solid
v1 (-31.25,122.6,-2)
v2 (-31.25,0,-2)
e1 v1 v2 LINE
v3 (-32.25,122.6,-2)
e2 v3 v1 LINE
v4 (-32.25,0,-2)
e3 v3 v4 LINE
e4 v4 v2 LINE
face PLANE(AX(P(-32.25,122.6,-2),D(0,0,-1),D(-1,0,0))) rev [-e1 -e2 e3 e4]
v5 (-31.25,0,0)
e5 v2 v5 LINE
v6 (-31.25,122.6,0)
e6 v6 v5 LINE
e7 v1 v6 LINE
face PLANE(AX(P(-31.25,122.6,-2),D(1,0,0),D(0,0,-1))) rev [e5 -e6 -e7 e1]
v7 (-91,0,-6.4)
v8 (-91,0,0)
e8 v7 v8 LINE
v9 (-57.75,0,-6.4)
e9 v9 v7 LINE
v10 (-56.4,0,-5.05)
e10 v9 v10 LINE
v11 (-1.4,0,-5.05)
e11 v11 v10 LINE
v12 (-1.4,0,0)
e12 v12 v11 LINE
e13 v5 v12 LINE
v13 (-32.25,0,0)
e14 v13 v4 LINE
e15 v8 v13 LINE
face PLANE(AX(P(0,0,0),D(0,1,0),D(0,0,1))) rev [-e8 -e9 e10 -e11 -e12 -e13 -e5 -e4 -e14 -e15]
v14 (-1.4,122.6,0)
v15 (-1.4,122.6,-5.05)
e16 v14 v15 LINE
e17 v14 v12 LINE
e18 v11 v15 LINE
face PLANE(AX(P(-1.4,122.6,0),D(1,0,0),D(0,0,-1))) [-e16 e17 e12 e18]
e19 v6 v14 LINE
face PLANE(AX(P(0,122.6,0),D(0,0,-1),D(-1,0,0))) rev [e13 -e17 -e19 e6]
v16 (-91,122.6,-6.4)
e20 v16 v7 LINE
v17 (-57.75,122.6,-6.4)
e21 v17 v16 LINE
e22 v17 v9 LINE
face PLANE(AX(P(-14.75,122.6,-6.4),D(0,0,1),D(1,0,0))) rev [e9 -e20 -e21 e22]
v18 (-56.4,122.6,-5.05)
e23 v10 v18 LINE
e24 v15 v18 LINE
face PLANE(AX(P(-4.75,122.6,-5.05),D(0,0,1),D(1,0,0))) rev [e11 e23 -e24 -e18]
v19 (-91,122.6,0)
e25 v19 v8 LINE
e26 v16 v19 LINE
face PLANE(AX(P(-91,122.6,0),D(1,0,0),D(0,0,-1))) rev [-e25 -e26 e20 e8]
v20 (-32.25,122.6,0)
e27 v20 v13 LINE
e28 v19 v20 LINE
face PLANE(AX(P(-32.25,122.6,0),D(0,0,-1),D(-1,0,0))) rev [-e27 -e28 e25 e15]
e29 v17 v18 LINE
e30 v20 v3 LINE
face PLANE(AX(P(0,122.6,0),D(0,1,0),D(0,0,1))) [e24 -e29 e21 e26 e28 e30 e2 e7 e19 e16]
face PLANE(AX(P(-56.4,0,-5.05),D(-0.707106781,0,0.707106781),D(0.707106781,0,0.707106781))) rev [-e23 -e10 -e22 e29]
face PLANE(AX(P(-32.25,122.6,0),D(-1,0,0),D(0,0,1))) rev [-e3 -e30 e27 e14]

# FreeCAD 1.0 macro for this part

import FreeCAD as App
import Part
import Sketcher
from FreeCAD import Vector
Q = App.Units.Quantity


def add_polygon(sketch, points):
    """Adds a closed chain of lines whose ends are joined by coincident constraints."""
    first, n = sketch.GeometryCount, len(points)
    for a, b in zip(points, points[1:] + points[:1]):
        sketch.addGeometry(Part.LineSegment(App.Vector(*a, 0), App.Vector(*b, 0)), False)
    for i in range(n):
        sketch.addConstraint(Sketcher.Constraint("Coincident", first + i, 2, first + (i + 1) % n, 1))

doc = App.newDocument("Part")
body = doc.addObject("PartDesign::Body", "Body")

# Sketch on XZ plane
sketch1 = body.newObject("Sketcher::SketchObject", "Sketch")
sketch1.AttachmentSupport = (doc.getObject("XZ_Plane"), [""])
sketch1.MapMode = "FlatFace"
add_polygon(sketch1, [(-4.8, -15), (-4.8, -5), (-14.8, -5), (-14.8, -6.4), (-91, -6.4), (-91, 0), (-32.2, 0), (-32.2, -2), (-31.2, -2), (-31.2, 0), (0, 0), (0, -15)])  # lines 0-11
sketch1.addConstraint(Sketcher.Constraint("Vertical", 0))
sketch1.addConstraint(Sketcher.Constraint("Horizontal", 1))
sketch1.addConstraint(Sketcher.Constraint("Vertical", 2))
sketch1.addConstraint(Sketcher.Constraint("Horizontal", 3))
sketch1.addConstraint(Sketcher.Constraint("Vertical", 4))
sketch1.addConstraint(Sketcher.Constraint("Horizontal", 5))
sketch1.addConstraint(Sketcher.Constraint("Vertical", 6))
sketch1.addConstraint(Sketcher.Constraint("Horizontal", 7))
sketch1.addConstraint(Sketcher.Constraint("Vertical", 8))
sketch1.addConstraint(Sketcher.Constraint("Horizontal", 9))
sketch1.addConstraint(Sketcher.Constraint("Vertical", 10))
sketch1.addConstraint(Sketcher.Constraint("Horizontal", 11))
sketch1.addConstraint(Sketcher.Constraint("Coincident", 9, 2, -1, 1))
sketch1.addConstraint(Sketcher.Constraint("PointOnObject", 4, 2, -1))
sketch1.addConstraint(Sketcher.Constraint("DistanceX", 1, 2, 1, 1, Q("10 mm")))
sketch1.addConstraint(Sketcher.Constraint("DistanceX", 7, 1, 7, 2, Q("1 mm")))
sketch1.addConstraint(Sketcher.Constraint("DistanceY", 6, 2, 6, 1, Q("2 mm")))
sketch1.addConstraint(Sketcher.Constraint("DistanceY", 10, 2, 10, 1, Q("15 mm")))
sketch1.addConstraint(Sketcher.Constraint("DistanceY", 4, 1, 4, 2, Q("6.4 mm")))
sketch1.addConstraint(Sketcher.Constraint("DistanceX", 3, 2, -1, 1, Q("91 mm")))
sketch1.addConstraint(Sketcher.Constraint("DistanceX", 3, 2, 3, 1, Q("76.25 mm")))
sketch1.addConstraint(Sketcher.Constraint("DistanceX", 5, 1, 5, 2, Q("58.75 mm")))
sketch1.addConstraint(Sketcher.Constraint("DistanceY", 0, 1, 0, 2, Q("9.95 mm")))
pad1 = body.newObject("PartDesign::Pad", "Pad")
pad1.Profile = sketch1
pad1.Length = 122.6
pad1.Reversed = True

# Sketch on YZ plane
sketch2 = body.newObject("Sketcher::SketchObject", "Sketch001")
sketch2.AttachmentSupport = (doc.getObject("YZ_Plane"), [""])
sketch2.MapMode = "FlatFace"
add_polygon(sketch2, [(124, 22), (-13, 22), (-13, -31), (124, -31)])  # lines 0-3
sketch2.addConstraint(Sketcher.Constraint("Horizontal", 0))
sketch2.addConstraint(Sketcher.Constraint("Vertical", 1))
sketch2.addConstraint(Sketcher.Constraint("Horizontal", 2))
sketch2.addConstraint(Sketcher.Constraint("Vertical", 3))
sketch2.addConstraint(Sketcher.Constraint("DistanceY", 1, 2, 1, 1, Q("52.856609 mm")))
sketch2.addConstraint(Sketcher.Constraint("DistanceX", 0, 2, 0, 1, Q("136.885065 mm")))
sketch2.addConstraint(Sketcher.Constraint("DistanceX", 0, 2, -1, 1, Q("12.64843 mm")))
sketch2.addConstraint(Sketcher.Constraint("DistanceY", -1, 1, 0, 2, Q("22.316549 mm")))
pocket1 = body.newObject("PartDesign::Pocket", "Pocket")
pocket1.Profile = sketch2
pocket1.Length = 1.4

# Sketch on XZ plane
sketch3 = body.newObject("Sketcher::SketchObject", "Sketch002")
sketch3.AttachmentSupport = (doc.getObject("XZ_Plane"), [""])
sketch3.MapMode = "FlatFace"
sketch3.AttachmentOffset = App.Placement(Vector(0, 0, -122.6), App.Rotation())
add_polygon(sketch3, [(-56, -5), (-1, -5), (-1, -21), (-61, -21), (-61, -9)])  # lines 0-4
sketch3.addConstraint(Sketcher.Constraint("Horizontal", 0))
sketch3.addConstraint(Sketcher.Constraint("Vertical", 1))
sketch3.addConstraint(Sketcher.Constraint("Horizontal", 2))
sketch3.addConstraint(Sketcher.Constraint("Vertical", 3))
sketch3.addConstraint(Sketcher.Constraint("DistanceX", 0, 1, 0, 2, Q("55 mm")))
sketch3.addConstraint(Sketcher.Constraint("Angle", 4, Q("45 deg")))
sketch3.addConstraint(Sketcher.Constraint("DistanceX", 0, 2, -1, 1, Q("1.4 mm")))
sketch3.addConstraint(Sketcher.Constraint("DistanceY", 0, 2, -1, 1, Q("5.05 mm")))
sketch3.addConstraint(Sketcher.Constraint("DistanceX", 2, 2, 2, 1, Q("59.421071 mm")))
sketch3.addConstraint(Sketcher.Constraint("DistanceY", 3, 1, 3, 2, Q("11.542642 mm")))
pocket2 = body.newObject("PartDesign::Pocket", "Pocket001")
pocket2.Profile = sketch3
pocket2.Type = "ThroughAll"
pocket2.Midplane = True

doc.recompute()
